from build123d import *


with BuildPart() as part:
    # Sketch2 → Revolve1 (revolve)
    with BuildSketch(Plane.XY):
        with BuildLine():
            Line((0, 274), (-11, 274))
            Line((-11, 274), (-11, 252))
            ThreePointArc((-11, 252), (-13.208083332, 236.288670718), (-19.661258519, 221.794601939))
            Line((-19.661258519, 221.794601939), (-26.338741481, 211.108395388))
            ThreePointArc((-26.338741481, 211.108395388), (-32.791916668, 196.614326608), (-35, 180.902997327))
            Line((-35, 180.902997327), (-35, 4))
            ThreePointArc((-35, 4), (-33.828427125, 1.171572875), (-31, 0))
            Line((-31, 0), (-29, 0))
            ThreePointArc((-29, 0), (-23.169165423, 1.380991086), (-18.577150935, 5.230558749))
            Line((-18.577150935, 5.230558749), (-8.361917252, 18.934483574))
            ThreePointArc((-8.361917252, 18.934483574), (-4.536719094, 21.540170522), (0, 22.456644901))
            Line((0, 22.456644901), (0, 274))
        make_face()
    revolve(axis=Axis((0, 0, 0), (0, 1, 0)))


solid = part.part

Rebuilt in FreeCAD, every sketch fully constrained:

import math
import FreeCAD as App
import Part
import Sketcher
from FreeCAD import Vector
Q = App.Units.Quantity

doc = App.newDocument("Part")
body = doc.addObject("PartDesign::Body", "Body")

sketch1 = doc.addObject("Sketcher::SketchObject", "Sketch")
body.addObject(sketch1)
sketch1.AttachmentSupport = (doc.XY_Plane, [""])
sketch1.MapMode = "FlatFace"
sketch1.addGeometry(Part.LineSegment(Vector(0, 274, 0), Vector(-11, 274, 0)), False)
sketch1.addGeometry(Part.LineSegment(Vector(-11, 274, 0), Vector(-11, 252, 0)), False)
sketch1.addGeometry(Part.ArcOfCircle(Part.Circle(Vector(-68, 252, 0), Vector(0, 0, 1), 57), math.radians(-32), math.radians(0)), False)
sketch1.addGeometry(Part.LineSegment(Vector(-19.7, 221.8, 0), Vector(-26.3, 211.1, 0)), False)
sketch1.addGeometry(Part.ArcOfCircle(Part.Circle(Vector(22, 180.9, 0), Vector(0, 0, 1), 57), math.radians(148), math.radians(180)), False)
sketch1.addGeometry(Part.LineSegment(Vector(-35, 180.9, 0), Vector(-35, 4, 0)), False)
sketch1.addGeometry(Part.ArcOfCircle(Part.Circle(Vector(-31, 4, 0), Vector(0, 0, 1), 4), math.radians(180), math.radians(270)), False)
sketch1.addGeometry(Part.LineSegment(Vector(-31, 0, 0), Vector(-29, 0, 0)), False)
sketch1.addGeometry(Part.ArcOfCircle(Part.Circle(Vector(-29, 13, 0), Vector(0, 0, 1), 13), math.radians(-90), math.radians(-37)), False)
sketch1.addGeometry(Part.LineSegment(Vector(-18.6, 5.2, 0), Vector(-8.4, 18.9, 0)), False)
sketch1.addGeometry(Part.ArcOfCircle(Part.Circle(Vector(0, 10.8, 0), Vector(0, 0, 1), 11.7), math.radians(90), math.radians(136)), False)
sketch1.addGeometry(Part.LineSegment(Vector(0, 22.5, 0), Vector(0, 274, 0)), False)
sketch1.addConstraint(Sketcher.Constraint("Coincident", 0, 2, 1, 1))
sketch1.addConstraint(Sketcher.Constraint("Tangent", 1, 2, 2, 2))
sketch1.addConstraint(Sketcher.Constraint("Tangent", 2, 1, 3, 1))
sketch1.addConstraint(Sketcher.Constraint("Tangent", 3, 2, 4, 1))
sketch1.addConstraint(Sketcher.Constraint("Tangent", 4, 2, 5, 1))
sketch1.addConstraint(Sketcher.Constraint("Tangent", 5, 2, 6, 1))
sketch1.addConstraint(Sketcher.Constraint("Tangent", 6, 2, 7, 1))
sketch1.addConstraint(Sketcher.Constraint("Tangent", 7, 2, 8, 1))
sketch1.addConstraint(Sketcher.Constraint("Tangent", 8, 2, 9, 1))
sketch1.addConstraint(Sketcher.Constraint("Coincident", 9, 2, 10, 2))
sketch1.addConstraint(Sketcher.Constraint("Coincident", 10, 1, 11, 1))
sketch1.addConstraint(Sketcher.Constraint("Coincident", 11, 2, 0, 1))
sketch1.addConstraint(Sketcher.Constraint("Horizontal", 0))
sketch1.addConstraint(Sketcher.Constraint("Vertical", 1))
sketch1.addConstraint(Sketcher.Constraint("Vertical", 5))
sketch1.addConstraint(Sketcher.Constraint("Horizontal", 7))
sketch1.addConstraint(Sketcher.Constraint("Vertical", 11))
sketch1.addConstraint(Sketcher.Constraint("Equal", 2, 4))
sketch1.addConstraint(Sketcher.Constraint("PointOnObject", 10, 3, -2))
sketch1.addConstraint(Sketcher.Constraint("PointOnObject", 6, 2, -1))
sketch1.addConstraint(Sketcher.Constraint("PointOnObject", 10, 1, -2))
sketch1.addConstraint(Sketcher.Constraint("Radius", 2, Q("57 mm")))
sketch1.addConstraint(Sketcher.Constraint("Radius", 6, Q("4 mm")))
sketch1.addConstraint(Sketcher.Constraint("Radius", 8, Q("13 mm")))
sketch1.addConstraint(Sketcher.Constraint("DistanceX", 0, 2, 0, 1, Q("11 mm")))
sketch1.addConstraint(Sketcher.Constraint("DistanceX", 7, 1, 7, 2, Q("2 mm")))
sketch1.addConstraint(Sketcher.Constraint("DistanceY", 1, 2, 1, 1, Q("22 mm")))
sketch1.addConstraint(Sketcher.Constraint("Angle", 3, Q("-122 deg")))
sketch1.addConstraint(Sketcher.Constraint("DistanceY", -1, 1, 2, 3, Q("252 mm")))
sketch1.addConstraint(Sketcher.Constraint("DistanceX", -1, 1, 4, 3, Q("22 mm")))
sketch1.addConstraint(Sketcher.Constraint("Radius", 10, Q("11.68704 mm")))
sketch1.addConstraint(Sketcher.Constraint("DistanceY", 11, 1, 11, 2, Q("251.543355 mm")))
sketch1.addConstraint(Sketcher.Constraint("DistanceX", 8, 2, -1, 1, Q("18.577151 mm")))
revolution = doc.addObject("PartDesign::Revolution", "Revolution")
body.addObject(revolution)
revolution.Profile = sketch1
revolution.ReferenceAxis = (sketch1, ["V_Axis"])
revolution.Angle = 360

doc.recompute()
